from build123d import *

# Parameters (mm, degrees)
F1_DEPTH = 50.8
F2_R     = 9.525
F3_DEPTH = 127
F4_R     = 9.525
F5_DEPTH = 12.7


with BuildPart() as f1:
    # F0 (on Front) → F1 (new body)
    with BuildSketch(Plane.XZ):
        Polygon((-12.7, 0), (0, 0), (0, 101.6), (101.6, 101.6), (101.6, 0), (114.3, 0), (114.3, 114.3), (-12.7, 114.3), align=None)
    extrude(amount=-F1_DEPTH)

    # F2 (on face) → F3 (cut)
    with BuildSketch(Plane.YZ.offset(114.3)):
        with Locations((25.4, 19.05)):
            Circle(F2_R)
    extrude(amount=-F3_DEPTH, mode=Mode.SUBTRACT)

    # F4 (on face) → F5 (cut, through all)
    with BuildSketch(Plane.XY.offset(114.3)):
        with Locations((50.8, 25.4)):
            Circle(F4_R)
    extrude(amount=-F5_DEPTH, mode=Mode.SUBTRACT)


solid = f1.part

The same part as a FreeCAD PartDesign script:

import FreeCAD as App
import Part
import Sketcher
Q = App.Units.Quantity


def add_polygon(sketch, points):
    """Adds a closed chain of lines whose ends are joined by coincident constraints."""
    first, n = sketch.GeometryCount, len(points)
    for a, b in zip(points, points[1:] + points[:1]):
        sketch.addGeometry(Part.LineSegment(App.Vector(*a, 0), App.Vector(*b, 0)), False)
    for i in range(n):
        sketch.addConstraint(Sketcher.Constraint("Coincident", first + i, 2, first + (i + 1) % n, 1))

doc = App.newDocument("Part")
body = doc.addObject("PartDesign::Body", "Body")

# Sketch on XZ plane
sketch1 = body.newObject("Sketcher::SketchObject", "Sketch")
sketch1.AttachmentSupport = (doc.getObject("XZ_Plane"), [""])
sketch1.MapMode = "FlatFace"
add_polygon(sketch1, [(-13, 0), (0, 0), (0, 102), (102, 102), (102, 0), (114, 0), (114, 114), (-13, 114)])  # lines 0-7
sketch1.addConstraint(Sketcher.Constraint("Horizontal", 0))
sketch1.addConstraint(Sketcher.Constraint("Vertical", 1))
sketch1.addConstraint(Sketcher.Constraint("Horizontal", 2))
sketch1.addConstraint(Sketcher.Constraint("Vertical", 3))
sketch1.addConstraint(Sketcher.Constraint("Horizontal", 4))
sketch1.addConstraint(Sketcher.Constraint("Vertical", 5))
sketch1.addConstraint(Sketcher.Constraint("Horizontal", 6))
sketch1.addConstraint(Sketcher.Constraint("Vertical", 7))
sketch1.addConstraint(Sketcher.Constraint("Coincident", 0, 2, -1, 1))
sketch1.addConstraint(Sketcher.Constraint("PointOnObject", 3, 2, -1))
sketch1.addConstraint(Sketcher.Constraint("Equal", 0, 4))
sketch1.addConstraint(Sketcher.Constraint("Equal", 2, 1))
sketch1.addConstraint(Sketcher.Constraint("DistanceX", 2, 1, 2, 2, Q("4 in")))
sketch1.addConstraint(Sketcher.Constraint("DistanceX", 6, 2, 6, 1, Q("5 in")))
sketch1.addConstraint(Sketcher.Constraint("DistanceY", 5, 1, 5, 2, Q("4.5 in")))
pad1 = body.newObject("PartDesign::Pad", "Pad")
pad1.Profile = sketch1
pad1.Length = Q("2 in")
pad1.Reversed = True

# Sketch on YZ plane
sketch2 = body.newObject("Sketcher::SketchObject", "Sketch001")
sketch2.AttachmentSupport = (doc.getObject("YZ_Plane"), [""])
sketch2.MapMode = "FlatFace"
sketch2.AttachmentOffset = App.Placement(App.Vector(0, 0, 4.5 * 25.4), App.Rotation())
sketch2.addGeometry(Part.Circle(App.Vector(25, 19, 0), App.Vector(0, 0, 1), 10), False)
sketch2.addConstraint(Sketcher.Constraint("Diameter", 0, Q("0.75 in")))
sketch2.addConstraint(Sketcher.Constraint("DistanceX", -1, 1, 0, 3, Q("1 in")))
sketch2.addConstraint(Sketcher.Constraint("DistanceY", -1, 1, 0, 3, Q("0.75 in")))
pocket1 = body.newObject("PartDesign::Pocket", "Pocket")
pocket1.Profile = sketch2
pocket1.Length = Q("5 in")

# Sketch on XY plane
sketch3 = body.newObject("Sketcher::SketchObject", "Sketch002")
sketch3.AttachmentSupport = (doc.getObject("XY_Plane"), [""])
sketch3.MapMode = "FlatFace"
sketch3.AttachmentOffset = App.Placement(App.Vector(0, 0, 4.5 * 25.4), App.Rotation())
sketch3.addGeometry(Part.Circle(App.Vector(51, 25, 0), App.Vector(0, 0, 1), 10), False)
sketch3.addConstraint(Sketcher.Constraint("Diameter", 0, Q("0.75 in")))
sketch3.addConstraint(Sketcher.Constraint("DistanceX", -1, 1, 0, 3, Q("2 in")))
sketch3.addConstraint(Sketcher.Constraint("DistanceY", -1, 1, 0, 3, Q("1 in")))
pocket2 = body.newObject("PartDesign::Pocket", "Pocket001")
pocket2.Profile = sketch3
pocket2.Type = "ThroughAll"

doc.recompute()
